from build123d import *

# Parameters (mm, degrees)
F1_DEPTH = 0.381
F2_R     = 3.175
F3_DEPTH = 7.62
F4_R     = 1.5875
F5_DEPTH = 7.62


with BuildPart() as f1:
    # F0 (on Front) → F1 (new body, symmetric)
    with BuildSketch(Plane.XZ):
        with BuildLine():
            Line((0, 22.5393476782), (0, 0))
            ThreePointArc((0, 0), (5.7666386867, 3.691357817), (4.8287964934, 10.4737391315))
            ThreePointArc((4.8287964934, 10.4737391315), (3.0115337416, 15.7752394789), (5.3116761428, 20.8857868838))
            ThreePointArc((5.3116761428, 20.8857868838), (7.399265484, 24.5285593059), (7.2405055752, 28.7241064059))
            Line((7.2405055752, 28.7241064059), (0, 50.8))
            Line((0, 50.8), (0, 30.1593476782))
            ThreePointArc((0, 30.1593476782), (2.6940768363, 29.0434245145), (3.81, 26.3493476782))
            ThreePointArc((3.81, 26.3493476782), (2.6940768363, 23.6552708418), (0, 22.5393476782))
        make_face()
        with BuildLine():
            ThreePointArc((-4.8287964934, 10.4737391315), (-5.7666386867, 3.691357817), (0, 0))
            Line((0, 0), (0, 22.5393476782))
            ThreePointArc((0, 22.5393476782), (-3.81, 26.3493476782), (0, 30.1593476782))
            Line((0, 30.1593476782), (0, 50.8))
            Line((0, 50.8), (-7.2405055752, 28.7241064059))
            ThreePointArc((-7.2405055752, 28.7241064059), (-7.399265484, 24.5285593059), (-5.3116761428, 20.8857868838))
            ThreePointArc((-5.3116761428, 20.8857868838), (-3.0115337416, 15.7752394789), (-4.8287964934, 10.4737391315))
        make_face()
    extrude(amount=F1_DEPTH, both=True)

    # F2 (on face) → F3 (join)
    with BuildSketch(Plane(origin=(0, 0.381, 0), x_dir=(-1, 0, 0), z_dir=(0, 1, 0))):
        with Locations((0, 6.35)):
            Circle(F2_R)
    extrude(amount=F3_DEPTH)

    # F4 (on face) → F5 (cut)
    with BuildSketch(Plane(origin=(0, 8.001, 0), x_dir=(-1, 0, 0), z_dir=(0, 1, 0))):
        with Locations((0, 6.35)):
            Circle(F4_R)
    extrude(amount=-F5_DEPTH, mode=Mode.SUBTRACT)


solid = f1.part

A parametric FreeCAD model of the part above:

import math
import FreeCAD as App
import Part
import Sketcher
from FreeCAD import Vector
Q = App.Units.Quantity

doc = App.newDocument("Part")
body = doc.addObject("PartDesign::Body", "Body")

sketch1 = body.newObject("Sketcher::SketchObject", "Sketch")
sketch1.AttachmentSupport = (doc.getObject("XZ_Plane"), [""])
sketch1.MapMode = "FlatFace"
sketch1.addGeometry([
    Part.ArcOfCircle(Part.Circle(Vector(0, 6.3, 0), Vector(0, 0, 1), 6.3), math.radians(-90), math.radians(40)),
    Part.ArcOfCircle(Part.Circle(Vector(10.6, 15.4, 0), Vector(0, 0, 1), 7.6), math.radians(134), math.radians(220)),
    Part.ArcOfCircle(Part.Circle(Vector(0, 26.3, 0), Vector(0, 0, 1), 7.6), math.radians(-46), math.radians(18)),
    Part.LineSegment(Vector(7.2, 28.7, 0), Vector(0, 50.8, 0)),
    Part.LineSegment(Vector(0, 50.8, 0), Vector(-7.2, 28.7, 0)),
    Part.ArcOfCircle(Part.Circle(Vector(0, 26.3, 0), Vector(0, 0, 1), 7.6), math.radians(162), math.radians(226)),
    Part.ArcOfCircle(Part.Circle(Vector(-10.6, 15.4, 0), Vector(0, 0, 1), 7.6), math.radians(-40), math.radians(46)),
    Part.ArcOfCircle(Part.Circle(Vector(0, 6.3, 0), Vector(0, 0, 1), 6.3), math.radians(140), math.radians(270)),
    Part.ArcOfCircle(Part.Circle(Vector(0, 26.3, 0), Vector(0, 0, 1), 3.8), math.radians(0), math.radians(90)),
    Part.ArcOfCircle(Part.Circle(Vector(0, 26.3, 0), Vector(0, 0, 1), 3.8), math.radians(-90), math.radians(0)),
    Part.ArcOfCircle(Part.Circle(Vector(0, 26.3, 0), Vector(0, 0, 1), 3.8), math.radians(90), math.radians(270)),
], False)
sketch1.addConstraint([
    Sketcher.Constraint("Tangent", 0, 2, 1, 2),
    Sketcher.Constraint("Tangent", 1, 1, 2, 1),
    Sketcher.Constraint("Tangent", 2, 2, 3, 1),
    Sketcher.Constraint("Coincident", 3, 2, 4, 1),
    Sketcher.Constraint("Tangent", 4, 2, 5, 1),
    Sketcher.Constraint("Tangent", 5, 2, 6, 2),
    Sketcher.Constraint("Tangent", 6, 1, 7, 1),
    Sketcher.Constraint("Tangent", 7, 2, 0, 1),
    Sketcher.Constraint("Tangent", 8, 1, 9, 2),
    Sketcher.Constraint("Tangent", 9, 1, 10, 2),
    Sketcher.Constraint("Tangent", 10, 1, 8, 2),
    Sketcher.Constraint("Coincident", 7, 2, -1, 1),
    Sketcher.Constraint("Coincident", 5, 3, 2, 3),
    Sketcher.Constraint("Coincident", 8, 3, 2, 3),
    Sketcher.Constraint("Equal", 1, 2),
    Sketcher.Constraint("Equal", 2, 5),
    Sketcher.Constraint("Equal", 5, 6),
    Sketcher.Constraint("Equal", 0, 7),
    Sketcher.Constraint("Symmetric", 1, 3, 6, 3, -2),
    Sketcher.Constraint("PointOnObject", 3, 2, -2),
    Sketcher.Constraint("PointOnObject", 9, 1, -2),
    Sketcher.Constraint("PointOnObject", 10, 1, -2),
    Sketcher.Constraint("Horizontal", 10, 3, 8, 1),
    Sketcher.Constraint("Radius", 1, Q("0.3 in")),
    Sketcher.Constraint("Radius", 0, Q("0.25 in")),
    Sketcher.Constraint("Radius", 8, Q("0.15 in")),
    Sketcher.Constraint("DistanceY", -1, 1, 3, 2, Q("2 in")),
    Sketcher.Constraint("Distance", 3, Q("23.232951 mm")),
])
pad1 = body.newObject("PartDesign::Pad", "Pad")
pad1.Profile = sketch1
pad1.Length = Q("0.03 in")
pad1.Midplane = True

sketch2 = body.newObject("Sketcher::SketchObject", "Sketch001")
sketch2.AttachmentSupport = (doc.getObject("XZ_Plane"), [""])
sketch2.MapMode = "FlatFace"
sketch2.AttachmentOffset = App.Placement(Vector(0, 0, -0.015 * 25.4), App.Rotation())
sketch2.addGeometry(Part.Circle(Vector(0, 6.3, 0), Vector(0, 0, 1), 3.2), False)
sketch2.addConstraint([
    Sketcher.Constraint("PointOnObject", 0, 3, -2),
    Sketcher.Constraint("Diameter", 0, Q("0.25 in")),
    Sketcher.Constraint("DistanceY", -1, 1, 0, 3, Q("0.25 in")),
])
pad2 = body.newObject("PartDesign::Pad", "Pad001")
pad2.Profile = sketch2
pad2.Length = Q("0.3 in")
pad2.Reversed = True

sketch3 = body.newObject("Sketcher::SketchObject", "Sketch002")
sketch3.AttachmentSupport = (doc.getObject("XZ_Plane"), [""])
sketch3.MapMode = "FlatFace"
sketch3.AttachmentOffset = App.Placement(Vector(0, 0, -0.315 * 25.4), App.Rotation())
sketch3.addGeometry(Part.Circle(Vector(0, 6.3, 0), Vector(0, 0, 1), 1.6), False)
sketch3.addConstraint([
    Sketcher.Constraint("PointOnObject", 0, 3, -2),
    Sketcher.Constraint("Diameter", 0, Q("0.125 in")),
    Sketcher.Constraint("DistanceY", -1, 1, 0, 3, Q("0.25 in")),
])
pocket1 = body.newObject("PartDesign::Pocket", "Pocket")
pocket1.Profile = sketch3
pocket1.Length = Q("0.3 in")
pocket1.Reversed = True

doc.recompute()
